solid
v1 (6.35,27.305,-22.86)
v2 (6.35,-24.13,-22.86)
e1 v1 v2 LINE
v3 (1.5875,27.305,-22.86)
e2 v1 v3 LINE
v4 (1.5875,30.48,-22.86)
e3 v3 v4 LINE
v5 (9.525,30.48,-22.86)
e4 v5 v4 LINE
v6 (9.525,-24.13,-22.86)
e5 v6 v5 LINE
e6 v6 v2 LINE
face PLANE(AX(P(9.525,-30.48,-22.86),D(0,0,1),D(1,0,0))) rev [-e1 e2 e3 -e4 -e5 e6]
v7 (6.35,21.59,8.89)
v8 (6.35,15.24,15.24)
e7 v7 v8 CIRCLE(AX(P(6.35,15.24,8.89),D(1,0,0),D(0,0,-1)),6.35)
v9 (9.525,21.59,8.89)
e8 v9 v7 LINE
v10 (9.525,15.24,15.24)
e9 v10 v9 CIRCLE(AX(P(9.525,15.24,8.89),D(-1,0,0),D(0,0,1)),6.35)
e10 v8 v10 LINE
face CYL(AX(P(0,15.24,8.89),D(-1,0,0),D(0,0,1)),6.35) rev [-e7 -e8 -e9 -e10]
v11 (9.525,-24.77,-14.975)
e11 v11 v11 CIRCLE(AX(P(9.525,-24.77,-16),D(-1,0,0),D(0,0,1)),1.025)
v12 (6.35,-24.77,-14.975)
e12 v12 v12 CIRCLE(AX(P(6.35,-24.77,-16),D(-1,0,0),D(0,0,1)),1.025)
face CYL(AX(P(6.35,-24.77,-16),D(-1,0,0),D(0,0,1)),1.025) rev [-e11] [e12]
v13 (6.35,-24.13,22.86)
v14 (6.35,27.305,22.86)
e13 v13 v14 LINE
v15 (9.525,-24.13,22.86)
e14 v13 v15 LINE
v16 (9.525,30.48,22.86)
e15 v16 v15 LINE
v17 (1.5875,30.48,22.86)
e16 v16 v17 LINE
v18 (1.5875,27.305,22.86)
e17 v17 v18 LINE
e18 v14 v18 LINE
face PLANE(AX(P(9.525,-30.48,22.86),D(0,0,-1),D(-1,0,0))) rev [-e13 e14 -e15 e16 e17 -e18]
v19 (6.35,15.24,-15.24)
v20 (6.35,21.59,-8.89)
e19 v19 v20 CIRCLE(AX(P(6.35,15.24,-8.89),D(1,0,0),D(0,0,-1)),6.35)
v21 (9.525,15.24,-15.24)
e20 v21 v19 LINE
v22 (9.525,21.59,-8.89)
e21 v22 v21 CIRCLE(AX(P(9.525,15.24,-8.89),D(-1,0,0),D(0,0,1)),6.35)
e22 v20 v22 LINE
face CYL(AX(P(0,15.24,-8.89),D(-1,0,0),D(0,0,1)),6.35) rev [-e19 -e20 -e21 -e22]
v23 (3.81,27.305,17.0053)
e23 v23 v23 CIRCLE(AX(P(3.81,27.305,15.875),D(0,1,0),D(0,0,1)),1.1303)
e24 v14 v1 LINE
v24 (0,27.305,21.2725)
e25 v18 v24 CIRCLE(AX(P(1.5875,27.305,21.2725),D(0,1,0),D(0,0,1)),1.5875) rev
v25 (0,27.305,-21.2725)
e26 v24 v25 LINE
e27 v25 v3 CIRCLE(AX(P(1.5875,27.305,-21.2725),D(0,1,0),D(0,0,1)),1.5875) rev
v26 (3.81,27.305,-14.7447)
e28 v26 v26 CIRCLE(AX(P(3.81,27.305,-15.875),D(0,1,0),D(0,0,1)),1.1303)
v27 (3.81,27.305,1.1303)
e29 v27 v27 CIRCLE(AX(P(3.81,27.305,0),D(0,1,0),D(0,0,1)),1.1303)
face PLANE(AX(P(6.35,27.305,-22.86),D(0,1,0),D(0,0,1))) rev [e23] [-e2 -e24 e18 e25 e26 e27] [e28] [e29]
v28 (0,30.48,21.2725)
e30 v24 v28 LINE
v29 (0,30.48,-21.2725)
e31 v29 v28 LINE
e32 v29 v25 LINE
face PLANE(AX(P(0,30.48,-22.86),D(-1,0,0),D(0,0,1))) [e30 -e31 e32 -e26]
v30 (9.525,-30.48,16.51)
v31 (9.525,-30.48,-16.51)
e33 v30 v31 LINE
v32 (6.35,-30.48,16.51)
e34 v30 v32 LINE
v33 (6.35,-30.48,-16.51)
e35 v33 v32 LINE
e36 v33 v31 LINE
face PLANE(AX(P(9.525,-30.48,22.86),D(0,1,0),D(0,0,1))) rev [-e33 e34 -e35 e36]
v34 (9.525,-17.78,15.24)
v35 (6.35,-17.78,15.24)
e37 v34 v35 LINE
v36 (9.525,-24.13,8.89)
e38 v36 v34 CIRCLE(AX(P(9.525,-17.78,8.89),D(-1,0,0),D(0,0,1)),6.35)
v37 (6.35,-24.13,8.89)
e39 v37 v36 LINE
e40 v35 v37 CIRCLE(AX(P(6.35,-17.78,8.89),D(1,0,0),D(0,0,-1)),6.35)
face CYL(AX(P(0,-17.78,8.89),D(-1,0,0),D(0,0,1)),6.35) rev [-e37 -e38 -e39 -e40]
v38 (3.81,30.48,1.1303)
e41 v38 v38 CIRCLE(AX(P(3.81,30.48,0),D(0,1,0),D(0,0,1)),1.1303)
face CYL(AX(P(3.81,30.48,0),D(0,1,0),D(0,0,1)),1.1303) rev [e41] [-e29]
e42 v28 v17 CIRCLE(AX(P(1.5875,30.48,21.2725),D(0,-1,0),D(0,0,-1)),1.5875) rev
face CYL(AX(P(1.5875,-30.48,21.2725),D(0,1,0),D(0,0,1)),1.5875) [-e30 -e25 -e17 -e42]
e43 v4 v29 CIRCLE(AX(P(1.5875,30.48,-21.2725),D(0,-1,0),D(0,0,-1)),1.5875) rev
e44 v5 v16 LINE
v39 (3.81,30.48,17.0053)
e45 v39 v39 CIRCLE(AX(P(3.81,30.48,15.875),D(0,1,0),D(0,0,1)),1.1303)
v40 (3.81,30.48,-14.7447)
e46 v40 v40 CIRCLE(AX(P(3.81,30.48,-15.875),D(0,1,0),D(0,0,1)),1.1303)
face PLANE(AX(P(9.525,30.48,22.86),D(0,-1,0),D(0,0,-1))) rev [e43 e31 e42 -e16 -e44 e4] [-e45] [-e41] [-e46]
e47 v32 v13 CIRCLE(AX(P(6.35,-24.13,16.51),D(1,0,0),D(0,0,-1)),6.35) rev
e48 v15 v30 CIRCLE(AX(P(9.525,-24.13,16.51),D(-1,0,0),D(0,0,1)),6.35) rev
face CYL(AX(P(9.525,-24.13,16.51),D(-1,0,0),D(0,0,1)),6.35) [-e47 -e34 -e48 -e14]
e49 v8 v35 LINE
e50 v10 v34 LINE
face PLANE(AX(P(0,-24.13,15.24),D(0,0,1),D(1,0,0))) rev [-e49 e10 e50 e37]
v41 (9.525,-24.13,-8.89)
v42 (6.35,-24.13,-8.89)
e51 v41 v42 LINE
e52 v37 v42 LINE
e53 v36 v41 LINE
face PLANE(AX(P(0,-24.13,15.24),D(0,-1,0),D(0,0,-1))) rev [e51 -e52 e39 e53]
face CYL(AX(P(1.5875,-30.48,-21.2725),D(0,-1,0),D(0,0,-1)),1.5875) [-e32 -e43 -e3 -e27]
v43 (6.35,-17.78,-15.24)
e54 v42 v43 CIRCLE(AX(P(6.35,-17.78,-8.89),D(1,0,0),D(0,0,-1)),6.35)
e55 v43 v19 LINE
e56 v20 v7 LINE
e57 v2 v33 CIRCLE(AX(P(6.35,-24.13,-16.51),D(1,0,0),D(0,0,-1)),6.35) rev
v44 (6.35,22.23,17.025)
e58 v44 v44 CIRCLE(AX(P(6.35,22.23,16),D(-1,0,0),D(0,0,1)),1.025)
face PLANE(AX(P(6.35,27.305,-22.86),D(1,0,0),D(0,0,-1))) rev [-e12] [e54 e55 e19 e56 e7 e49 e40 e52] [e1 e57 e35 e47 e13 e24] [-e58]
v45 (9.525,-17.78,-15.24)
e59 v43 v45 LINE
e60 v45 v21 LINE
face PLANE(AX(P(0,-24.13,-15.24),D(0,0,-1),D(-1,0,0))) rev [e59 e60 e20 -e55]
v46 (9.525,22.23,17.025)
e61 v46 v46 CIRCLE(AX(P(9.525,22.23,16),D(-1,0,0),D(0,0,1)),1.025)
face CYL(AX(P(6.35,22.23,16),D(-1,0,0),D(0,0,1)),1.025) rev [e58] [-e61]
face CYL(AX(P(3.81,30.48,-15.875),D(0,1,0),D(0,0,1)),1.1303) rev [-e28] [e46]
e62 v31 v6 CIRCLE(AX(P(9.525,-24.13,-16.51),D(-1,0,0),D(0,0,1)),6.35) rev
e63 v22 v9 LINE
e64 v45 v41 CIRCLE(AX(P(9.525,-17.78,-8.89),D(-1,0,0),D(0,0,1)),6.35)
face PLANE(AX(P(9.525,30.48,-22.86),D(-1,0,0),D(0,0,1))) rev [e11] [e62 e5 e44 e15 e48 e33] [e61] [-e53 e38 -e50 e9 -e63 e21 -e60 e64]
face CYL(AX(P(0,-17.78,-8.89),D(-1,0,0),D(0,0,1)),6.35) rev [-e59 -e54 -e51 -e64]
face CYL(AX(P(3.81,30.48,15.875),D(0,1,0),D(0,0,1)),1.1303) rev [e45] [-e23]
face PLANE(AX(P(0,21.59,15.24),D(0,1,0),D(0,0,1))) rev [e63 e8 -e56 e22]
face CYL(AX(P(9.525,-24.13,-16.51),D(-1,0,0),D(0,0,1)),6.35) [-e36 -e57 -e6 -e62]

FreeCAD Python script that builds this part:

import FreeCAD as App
import Part
import Sketcher
from FreeCAD import Vector
Q = App.Units.Quantity


def edges_at(feature, points):
    """Names of the edges that pass closest to the given points."""
    edges = feature.Shape.Edges
    near = lambda p: min(range(len(edges)), key=lambda i: edges[i].distToShape(Part.Vertex(*p))[0])
    return sorted({f"Edge{near(p) + 1}" for p in points})


def add_polygon(sketch, points):
    """Adds a closed chain of lines whose ends are joined by coincident constraints."""
    first, n = sketch.GeometryCount, len(points)
    for a, b in zip(points, points[1:] + points[:1]):
        sketch.addGeometry(Part.LineSegment(App.Vector(*a, 0), App.Vector(*b, 0)), False)
    for i in range(n):
        sketch.addConstraint(Sketcher.Constraint("Coincident", first + i, 2, first + (i + 1) % n, 1))

doc = App.newDocument("Part")
body = doc.addObject("PartDesign::Body", "Body")

# Sketch on YZ plane
sketch1 = doc.addObject("Sketcher::SketchObject", "Sketch")
body.addObject(sketch1)
sketch1.AttachmentSupport = (doc.YZ_Plane, [""])
sketch1.MapMode = "FlatFace"
add_polygon(sketch1, [(30, 23), (-30, 23), (-30, -23), (30, -23)])  # lines 0-3
sketch1.addConstraint(Sketcher.Constraint("Horizontal", 0))
sketch1.addConstraint(Sketcher.Constraint("Vertical", 1))
sketch1.addConstraint(Sketcher.Constraint("Horizontal", 2))
sketch1.addConstraint(Sketcher.Constraint("Vertical", 3))
sketch1.addConstraint(Sketcher.Constraint("Symmetric", 0, 2, 2, 2, -1, 1))
sketch1.addConstraint(Sketcher.Constraint("DistanceX", 0, 2, 0, 1, Q("2.4 in")))
sketch1.addConstraint(Sketcher.Constraint("DistanceY", 1, 2, 1, 1, Q("1.8 in")))
pad1 = doc.addObject("PartDesign::Pad", "Pad")
body.addObject(pad1)
pad1.Profile = sketch1
pad1.Length = Q("0.375 in")

# Sketch on YZ plane
sketch2 = doc.addObject("Sketcher::SketchObject", "Sketch001")
body.addObject(sketch2)
sketch2.AttachmentSupport = (doc.YZ_Plane, [""])
sketch2.MapMode = "FlatFace"
add_polygon(sketch2, [(27, -23), (-30, -23), (-30, 23), (27, 23)])  # lines 0-3
sketch2.addConstraint(Sketcher.Constraint("Horizontal", 0))
sketch2.addConstraint(Sketcher.Constraint("Vertical", 1))
sketch2.addConstraint(Sketcher.Constraint("Horizontal", 2))
sketch2.addConstraint(Sketcher.Constraint("Vertical", 3))
sketch2.addConstraint(Sketcher.Constraint("DistanceY", 1, 1, 1, 2, Q("1.8 in")))
sketch2.addConstraint(Sketcher.Constraint("DistanceX", 0, 2, -1, 1, Q("1.2 in")))
sketch2.addConstraint(Sketcher.Constraint("DistanceY", 0, 2, -1, 1, Q("0.9 in")))
sketch2.addConstraint(Sketcher.Constraint("DistanceX", 0, 2, 0, 1, Q("2.275 in")))
pocket1 = doc.addObject("PartDesign::Pocket", "Pocket")
body.addObject(pocket1)
pocket1.Profile = sketch2
pocket1.Length = Q("0.25 in")
pocket1.Reversed = True

# Sketch on YZ plane
sketch3 = doc.addObject("Sketcher::SketchObject", "Sketch002")
body.addObject(sketch3)
sketch3.AttachmentSupport = (doc.YZ_Plane, [""])
sketch3.MapMode = "FlatFace"
sketch3.AttachmentOffset = App.Placement(Vector(0, 0, 0.375 * 25.4), App.Rotation())
add_polygon(sketch3, [(22, 15), (-24, 15), (-24, -15), (22, -15)])  # lines 0-3
sketch3.addConstraint(Sketcher.Constraint("Horizontal", 0))
sketch3.addConstraint(Sketcher.Constraint("Vertical", 1))
sketch3.addConstraint(Sketcher.Constraint("Horizontal", 2))
sketch3.addConstraint(Sketcher.Constraint("Vertical", 3))
sketch3.addConstraint(Sketcher.Constraint("DistanceX", 0, 2, 0, 1, Q("1.8 in")))
sketch3.addConstraint(Sketcher.Constraint("DistanceY", 1, 2, 1, 1, Q("1.2 in")))
sketch3.addConstraint(Sketcher.Constraint("DistanceY", -1, 1, 0, 2, Q("0.6 in")))
sketch3.addConstraint(Sketcher.Constraint("DistanceX", 0, 2, -1, 1, Q("0.95 in")))
pocket2 = doc.addObject("PartDesign::Pocket", "Pocket001")
body.addObject(pocket2)
pocket2.Profile = sketch3
pocket2.Type = "ThroughAll"
doc.recompute()

fillet = doc.addObject("PartDesign::Fillet", "Fillet")
body.addObject(fillet)
fillet.Base = (pocket2, edges_at(pocket2, [
    (7.938, 21.59, -15.24),
    (7.938, -24.13, -15.24),
    (7.938, -24.13, 15.24),
    (7.938, 21.59, 15.24),
    (7.938, -30.48, -22.86),
    (7.938, -30.48, 22.86),
]))
fillet.Radius = Q("0.25 in")

# Sketch on YZ plane
sketch4 = doc.addObject("Sketcher::SketchObject", "Sketch003")
body.addObject(sketch4)
sketch4.AttachmentSupport = (doc.YZ_Plane, [""])
sketch4.MapMode = "FlatFace"
sketch4.AttachmentOffset = App.Placement(Vector(0, 0, 0.25 * 25.4), App.Rotation())
sketch4.addGeometry(Part.Circle(Vector(22.2, 16, 0), Vector(0, 0, 1), 1), False)
sketch4.addGeometry(Part.Circle(Vector(-24.8, -16, 0), Vector(0, 0, 1), 1), False)
sketch4.addGeometry(Part.Circle(Vector(-1.3, 0, 0), Vector(0, 0, 1), 1), False)
sketch4.addConstraint(Sketcher.Constraint("Equal", 0, 1))
sketch4.addConstraint(Sketcher.Constraint("Equal", 1, 2))
sketch4.addConstraint(Sketcher.Constraint("PointOnObject", 2, 3, -1))
sketch4.addConstraint(Sketcher.Constraint("Diameter", 0, 2.05))
sketch4.addConstraint(Sketcher.Constraint("DistanceX", 2, 3, -1, 1, Q("0.05 in")))
sketch4.addConstraint(Sketcher.Constraint("DistanceX", -1, 1, 0, 3, 22.23))
sketch4.addConstraint(Sketcher.Constraint("DistanceY", -1, 1, 0, 3, 16.0))
sketch4.addConstraint(Sketcher.Constraint("DistanceX", 1, 3, -1, 1, 24.77))
sketch4.addConstraint(Sketcher.Constraint("DistanceY", 1, 3, -1, 1, 16.0))
doc.recompute()
hole = doc.addObject("PartDesign::Hole", "Hole")
body.addObject(hole)
hole.Profile = sketch4
hole.ThreadType = "None"
hole.Diameter = 2.05
hole.DepthType = "Dimension"
hole.Depth = Q("0.29 in")
hole.DrillPoint = "Angled"
hole.DrillPointAngle = 118
hole.Reversed = True

# Sketch on XZ plane
sketch5 = doc.addObject("Sketcher::SketchObject", "Sketch004")
body.addObject(sketch5)
sketch5.AttachmentSupport = (doc.XZ_Plane, [""])
sketch5.MapMode = "FlatFace"
sketch5.AttachmentOffset = App.Placement(Vector(0, 0, -1.2 * 25.4), App.Rotation())
sketch5.addGeometry(Part.Circle(Vector(3.8, -15.9, 0), Vector(0, 0, 1), 1.1), False)
sketch5.addGeometry(Part.Circle(Vector(3.8, 15.9, 0), Vector(0, 0, 1), 1.1), False)
sketch5.addGeometry(Part.Circle(Vector(3.8, 0, 0), Vector(0, 0, 1), 1.1), False)
sketch5.addConstraint(Sketcher.Constraint("Equal", 0, 1))
sketch5.addConstraint(Sketcher.Constraint("Equal", 1, 2))
sketch5.addConstraint(Sketcher.Constraint("Symmetric", 0, 3, 1, 3, -1))
sketch5.addConstraint(Sketcher.Constraint("PointOnObject", 2, 3, -1))
sketch5.addConstraint(Sketcher.Constraint("Vertical", 1, 3, 2, 3))
sketch5.addConstraint(Sketcher.Constraint("Diameter", 0, Q("0.089 in")))
sketch5.addConstraint(Sketcher.Constraint("DistanceX", -1, 1, 0, 3, Q("0.15 in")))
sketch5.addConstraint(Sketcher.Constraint("DistanceY", 0, 3, 1, 3, Q("1.25 in")))
doc.recompute()
hole2 = doc.addObject("PartDesign::Hole", "Hole001")
body.addObject(hole2)
hole2.Profile = sketch5
hole2.ThreadType = "None"
hole2.Diameter = Q("0.089 in")
hole2.DepthType = "ThroughAll"
hole2.Reversed = True
doc.recompute()

fillet2 = doc.addObject("PartDesign::Fillet", "Fillet001")
body.addObject(fillet2)
fillet2.Base = (hole2, edges_at(hole2, [(0, 28.892, -22.86), (0, 28.892, 22.86)]))
fillet2.Radius = Q("0.0625 in")

doc.recompute()
